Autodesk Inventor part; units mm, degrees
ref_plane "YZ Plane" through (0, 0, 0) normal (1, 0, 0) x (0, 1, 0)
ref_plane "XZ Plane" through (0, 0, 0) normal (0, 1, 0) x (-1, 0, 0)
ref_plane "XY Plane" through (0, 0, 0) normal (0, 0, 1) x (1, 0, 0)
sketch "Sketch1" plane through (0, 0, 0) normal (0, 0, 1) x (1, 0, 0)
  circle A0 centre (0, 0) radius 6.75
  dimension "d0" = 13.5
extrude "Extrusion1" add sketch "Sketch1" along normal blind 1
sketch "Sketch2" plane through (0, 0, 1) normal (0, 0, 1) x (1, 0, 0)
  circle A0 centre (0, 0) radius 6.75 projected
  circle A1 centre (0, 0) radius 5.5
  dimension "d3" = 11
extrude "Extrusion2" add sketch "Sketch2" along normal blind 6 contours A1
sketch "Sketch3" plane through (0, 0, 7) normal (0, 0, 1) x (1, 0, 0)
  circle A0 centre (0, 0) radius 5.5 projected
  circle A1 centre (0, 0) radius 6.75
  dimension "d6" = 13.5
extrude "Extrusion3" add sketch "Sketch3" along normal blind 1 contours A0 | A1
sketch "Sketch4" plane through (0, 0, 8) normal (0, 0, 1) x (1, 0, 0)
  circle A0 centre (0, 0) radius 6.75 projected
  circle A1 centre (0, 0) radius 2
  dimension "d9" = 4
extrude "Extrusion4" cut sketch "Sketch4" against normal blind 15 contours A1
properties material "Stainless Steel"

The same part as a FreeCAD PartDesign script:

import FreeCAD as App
import Part
import Sketcher

V = App.Vector
Q = App.Units.Quantity

doc = App.newDocument("Part")
body = doc.addObject("PartDesign::Body", "Body")

sketch1 = body.newObject("Sketcher::SketchObject", "Sketch")
sketch1.AttachmentSupport = (doc.getObject("XY_Plane"), [""])
sketch1.MapMode = "FlatFace"
sketch1.addGeometry(Part.Circle(V(0, 0, 0), V(0, 0, 1), 6.75), False)
sketch1.addConstraint([
    Sketcher.Constraint("Coincident", 0, 3, -1, 1),
    Sketcher.Constraint("Diameter", 0, Q("13.5 mm")),
])
pad1 = body.newObject("PartDesign::Pad", "Pad")
pad1.Profile = sketch1
pad1.Length = 1

sketch2 = body.newObject("Sketcher::SketchObject", "Sketch001")
sketch2.AttachmentSupport = (doc.getObject("XY_Plane"), [""])
sketch2.MapMode = "FlatFace"
sketch2.AttachmentOffset = App.Placement(V(0, 0, 1), App.Rotation())
sketch2.addGeometry(Part.Circle(V(0, 0, 0), V(0, 0, 1), 5.5), False)
sketch2.addConstraint([
    Sketcher.Constraint("Coincident", 0, 3, -1, 1),
    Sketcher.Constraint("Diameter", 0, Q("11 mm")),
])
pad2 = body.newObject("PartDesign::Pad", "Pad001")
pad2.Profile = sketch2
pad2.Length = 6

sketch3 = body.newObject("Sketcher::SketchObject", "Sketch002")
sketch3.AttachmentSupport = (doc.getObject("XY_Plane"), [""])
sketch3.MapMode = "FlatFace"
sketch3.AttachmentOffset = App.Placement(V(0, 0, 7), App.Rotation())
sketch3.addGeometry(Part.Circle(V(0, 0, 0), V(0, 0, 1), 6.75), False)
sketch3.addConstraint([
    Sketcher.Constraint("Coincident", 0, 3, -1, 1),
    Sketcher.Constraint("Diameter", 0, Q("13.5 mm")),
])
pad3 = body.newObject("PartDesign::Pad", "Pad002")
pad3.Profile = sketch3
pad3.Length = 1

sketch4 = body.newObject("Sketcher::SketchObject", "Sketch003")
sketch4.AttachmentSupport = (doc.getObject("XY_Plane"), [""])
sketch4.MapMode = "FlatFace"
sketch4.AttachmentOffset = App.Placement(V(0, 0, 8), App.Rotation())
sketch4.addGeometry(Part.Circle(V(0, 0, 0), V(0, 0, 1), 2), False)
sketch4.addConstraint([
    Sketcher.Constraint("Coincident", 0, 3, -1, 1),
    Sketcher.Constraint("Diameter", 0, Q("4 mm")),
])
pocket1 = body.newObject("PartDesign::Pocket", "Pocket")
pocket1.Profile = sketch4
pocket1.Length = 15

doc.recompute()
